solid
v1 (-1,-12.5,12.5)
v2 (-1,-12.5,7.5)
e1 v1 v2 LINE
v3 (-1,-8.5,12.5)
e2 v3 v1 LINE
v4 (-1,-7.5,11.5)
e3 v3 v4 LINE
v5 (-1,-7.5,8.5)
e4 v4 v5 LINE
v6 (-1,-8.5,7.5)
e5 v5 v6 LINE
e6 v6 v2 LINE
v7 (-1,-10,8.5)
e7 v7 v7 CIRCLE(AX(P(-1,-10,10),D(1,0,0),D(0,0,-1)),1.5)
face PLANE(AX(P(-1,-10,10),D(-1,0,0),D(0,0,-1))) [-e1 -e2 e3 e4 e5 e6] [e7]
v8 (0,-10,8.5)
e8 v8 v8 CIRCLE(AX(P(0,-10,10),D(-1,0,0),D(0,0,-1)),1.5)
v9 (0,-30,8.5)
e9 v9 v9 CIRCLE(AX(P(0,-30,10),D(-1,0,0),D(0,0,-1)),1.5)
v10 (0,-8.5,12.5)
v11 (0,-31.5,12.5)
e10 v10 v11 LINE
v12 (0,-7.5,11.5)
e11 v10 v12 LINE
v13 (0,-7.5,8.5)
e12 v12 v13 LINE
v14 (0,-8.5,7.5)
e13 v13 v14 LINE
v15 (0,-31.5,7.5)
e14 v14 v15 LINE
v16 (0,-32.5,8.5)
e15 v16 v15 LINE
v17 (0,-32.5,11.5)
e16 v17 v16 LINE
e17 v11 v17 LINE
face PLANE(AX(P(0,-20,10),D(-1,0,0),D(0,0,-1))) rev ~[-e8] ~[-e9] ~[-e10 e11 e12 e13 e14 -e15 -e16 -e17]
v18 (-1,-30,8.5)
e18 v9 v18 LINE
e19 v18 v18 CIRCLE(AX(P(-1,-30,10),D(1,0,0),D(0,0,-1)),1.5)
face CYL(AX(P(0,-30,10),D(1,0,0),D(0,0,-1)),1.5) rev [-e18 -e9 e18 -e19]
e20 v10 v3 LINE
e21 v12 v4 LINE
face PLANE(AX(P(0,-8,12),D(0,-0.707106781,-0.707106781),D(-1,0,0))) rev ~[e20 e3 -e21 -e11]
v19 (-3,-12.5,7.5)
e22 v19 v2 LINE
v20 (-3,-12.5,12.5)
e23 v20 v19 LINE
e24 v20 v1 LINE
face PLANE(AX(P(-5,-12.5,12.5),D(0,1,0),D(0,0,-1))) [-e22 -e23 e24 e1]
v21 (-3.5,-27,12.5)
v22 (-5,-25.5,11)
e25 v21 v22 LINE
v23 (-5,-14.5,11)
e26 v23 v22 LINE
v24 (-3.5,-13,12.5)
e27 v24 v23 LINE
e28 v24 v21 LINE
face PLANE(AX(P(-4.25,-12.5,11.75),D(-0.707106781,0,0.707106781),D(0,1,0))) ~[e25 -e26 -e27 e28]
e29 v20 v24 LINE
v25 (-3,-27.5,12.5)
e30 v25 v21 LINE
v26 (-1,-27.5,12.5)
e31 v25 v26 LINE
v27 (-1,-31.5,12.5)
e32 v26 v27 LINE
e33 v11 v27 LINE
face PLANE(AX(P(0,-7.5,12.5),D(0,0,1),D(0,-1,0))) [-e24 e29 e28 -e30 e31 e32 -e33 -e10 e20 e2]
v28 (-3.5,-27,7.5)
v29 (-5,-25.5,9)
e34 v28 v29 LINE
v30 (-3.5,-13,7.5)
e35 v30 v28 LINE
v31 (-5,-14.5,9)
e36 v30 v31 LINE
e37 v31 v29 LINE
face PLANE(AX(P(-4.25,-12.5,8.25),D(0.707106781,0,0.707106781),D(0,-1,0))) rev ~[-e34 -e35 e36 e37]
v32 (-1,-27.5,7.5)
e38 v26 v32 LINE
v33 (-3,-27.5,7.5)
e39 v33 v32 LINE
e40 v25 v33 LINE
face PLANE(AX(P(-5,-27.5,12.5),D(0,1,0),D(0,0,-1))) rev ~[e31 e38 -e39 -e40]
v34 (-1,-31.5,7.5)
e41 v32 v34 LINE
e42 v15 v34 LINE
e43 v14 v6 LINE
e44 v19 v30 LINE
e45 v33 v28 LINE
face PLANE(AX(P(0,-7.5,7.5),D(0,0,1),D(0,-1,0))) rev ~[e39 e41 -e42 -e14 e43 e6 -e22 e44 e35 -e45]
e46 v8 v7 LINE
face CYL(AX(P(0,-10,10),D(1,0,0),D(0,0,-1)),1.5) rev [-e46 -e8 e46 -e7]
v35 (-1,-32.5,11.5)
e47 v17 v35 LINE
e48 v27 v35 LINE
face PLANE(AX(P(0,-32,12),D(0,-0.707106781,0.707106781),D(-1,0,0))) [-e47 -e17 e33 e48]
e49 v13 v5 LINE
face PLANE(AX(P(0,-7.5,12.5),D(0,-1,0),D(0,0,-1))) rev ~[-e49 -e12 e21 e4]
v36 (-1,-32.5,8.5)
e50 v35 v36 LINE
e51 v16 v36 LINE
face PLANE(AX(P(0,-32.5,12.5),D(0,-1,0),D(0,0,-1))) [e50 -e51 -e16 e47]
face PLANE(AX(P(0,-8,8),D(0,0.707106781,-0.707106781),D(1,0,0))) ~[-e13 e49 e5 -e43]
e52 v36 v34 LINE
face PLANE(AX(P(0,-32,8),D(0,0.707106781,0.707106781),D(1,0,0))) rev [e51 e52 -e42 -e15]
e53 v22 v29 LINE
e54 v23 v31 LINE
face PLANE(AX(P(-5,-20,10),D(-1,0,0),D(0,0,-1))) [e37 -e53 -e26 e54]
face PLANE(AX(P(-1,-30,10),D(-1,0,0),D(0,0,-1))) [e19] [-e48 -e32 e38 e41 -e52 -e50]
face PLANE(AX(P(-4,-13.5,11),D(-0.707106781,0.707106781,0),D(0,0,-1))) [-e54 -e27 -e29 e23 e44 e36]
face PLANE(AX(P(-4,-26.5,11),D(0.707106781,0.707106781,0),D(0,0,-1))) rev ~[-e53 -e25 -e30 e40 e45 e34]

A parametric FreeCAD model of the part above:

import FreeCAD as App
import Part
import Sketcher


def edges_at(feature, points):
    """Names of the edges that pass closest to the given points."""
    edges = feature.Shape.Edges
    near = lambda p: min(range(len(edges)), key=lambda i: edges[i].distToShape(Part.Vertex(*p))[0])
    return sorted({f"Edge{near(p) + 1}" for p in points})

doc = App.newDocument("Part")
body = doc.addObject("PartDesign::Body", "Body")

sketch1 = body.newObject("Sketcher::SketchObject", "Sketch")
sketch1.AttachmentSupport = (doc.getObject("YZ_Plane"), [""])
sketch1.MapMode = "FlatFace"
sketch1.addGeometry(Part.LineSegment(App.Vector(-32.5, 12.5, 0), App.Vector(-7.5, 12.5, 0)), False)
sketch1.addGeometry(Part.LineSegment(App.Vector(-7.5, 12.5, 0), App.Vector(-7.5, 7.5, 0)), False)
sketch1.addGeometry(Part.LineSegment(App.Vector(-7.5, 7.5, 0), App.Vector(-32.5, 7.5, 0)), False)
sketch1.addGeometry(Part.LineSegment(App.Vector(-32.5, 7.5, 0), App.Vector(-32.5, 12.5, 0)), False)
sketch1.addGeometry(Part.Circle(App.Vector(-10, 10, 0), App.Vector(0, 0, 1), 1.5), False)
sketch1.addGeometry(Part.Circle(App.Vector(-30, 10, 0), App.Vector(0, 0, 1), 1.5), False)
sketch1.addConstraint(Sketcher.Constraint("Coincident", 0, 2, 1, 1))
sketch1.addConstraint(Sketcher.Constraint("Coincident", 1, 2, 2, 1))
sketch1.addConstraint(Sketcher.Constraint("Coincident", 2, 2, 3, 1))
sketch1.addConstraint(Sketcher.Constraint("Coincident", 3, 2, 0, 1))
sketch1.addConstraint(Sketcher.Constraint("Horizontal", 0))
sketch1.addConstraint(Sketcher.Constraint("Vertical", 1))
sketch1.addConstraint(Sketcher.Constraint("Horizontal", 2))
sketch1.addConstraint(Sketcher.Constraint("Vertical", 3))
sketch1.addConstraint(Sketcher.Constraint("Equal", 4, 5))
sketch1.addConstraint(Sketcher.Constraint("Horizontal", 4, 3, 5, 3))
sketch1.addConstraint(Sketcher.Constraint("Diameter", 4, 3.0))
sketch1.addConstraint(Sketcher.Constraint("DistanceX", 0, 1, 0, 2, 25.0))
sketch1.addConstraint(Sketcher.Constraint("DistanceY", 1, 2, 1, 1, 5.0))
sketch1.addConstraint(Sketcher.Constraint("DistanceX", 4, 3, -1, 1, 10.0))
sketch1.addConstraint(Sketcher.Constraint("DistanceY", -1, 1, 4, 3, 10.0))
sketch1.addConstraint(Sketcher.Constraint("DistanceX", 5, 3, -1, 1, 30.0))
sketch1.addConstraint(Sketcher.Constraint("DistanceX", 0, 2, -1, 1, 7.5))
sketch1.addConstraint(Sketcher.Constraint("DistanceY", -1, 1, 0, 2, 12.5))
pad1 = body.newObject("PartDesign::Pad", "Pad")
pad1.Profile = sketch1
pad1.Length = 5
pad1.Reversed = True

sketch2 = body.newObject("Sketcher::SketchObject", "Sketch001")
sketch2.AttachmentSupport = (doc.getObject("YZ_Plane"), [""])
sketch2.MapMode = "FlatFace"
sketch2.AttachmentOffset = App.Placement(App.Vector(0, 0, -5), App.Rotation())
sketch2.addGeometry(Part.LineSegment(App.Vector(-32.5, 12.5, 0), App.Vector(-27.5, 12.5, 0)), False)
sketch2.addGeometry(Part.LineSegment(App.Vector(-27.5, 12.5, 0), App.Vector(-27.5, 7.5, 0)), False)
sketch2.addGeometry(Part.LineSegment(App.Vector(-27.5, 7.5, 0), App.Vector(-32.5, 7.5, 0)), False)
sketch2.addGeometry(Part.LineSegment(App.Vector(-32.5, 7.5, 0), App.Vector(-32.5, 12.5, 0)), False)
sketch2.addGeometry(Part.LineSegment(App.Vector(-12.5, 12.5, 0), App.Vector(-7.5, 12.5, 0)), False)
sketch2.addGeometry(Part.LineSegment(App.Vector(-7.5, 12.5, 0), App.Vector(-7.5, 7.5, 0)), False)
sketch2.addGeometry(Part.LineSegment(App.Vector(-7.5, 7.5, 0), App.Vector(-12.5, 7.5, 0)), False)
sketch2.addGeometry(Part.LineSegment(App.Vector(-12.5, 7.5, 0), App.Vector(-12.5, 12.5, 0)), False)
sketch2.addConstraint(Sketcher.Constraint("Coincident", 0, 2, 1, 1))
sketch2.addConstraint(Sketcher.Constraint("Coincident", 1, 2, 2, 1))
sketch2.addConstraint(Sketcher.Constraint("Coincident", 2, 2, 3, 1))
sketch2.addConstraint(Sketcher.Constraint("Coincident", 3, 2, 0, 1))
sketch2.addConstraint(Sketcher.Constraint("Coincident", 4, 2, 5, 1))
sketch2.addConstraint(Sketcher.Constraint("Coincident", 5, 2, 6, 1))
sketch2.addConstraint(Sketcher.Constraint("Coincident", 6, 2, 7, 1))
sketch2.addConstraint(Sketcher.Constraint("Coincident", 7, 2, 4, 1))
sketch2.addConstraint(Sketcher.Constraint("Horizontal", 0))
sketch2.addConstraint(Sketcher.Constraint("Vertical", 1))
sketch2.addConstraint(Sketcher.Constraint("Horizontal", 2))
sketch2.addConstraint(Sketcher.Constraint("Vertical", 3))
sketch2.addConstraint(Sketcher.Constraint("Horizontal", 4))
sketch2.addConstraint(Sketcher.Constraint("Vertical", 5))
sketch2.addConstraint(Sketcher.Constraint("Horizontal", 6))
sketch2.addConstraint(Sketcher.Constraint("Vertical", 7))
sketch2.addConstraint(Sketcher.Constraint("Horizontal", 3, 2, 4, 2))
sketch2.addConstraint(Sketcher.Constraint("Horizontal", 2, 2, 5, 2))
sketch2.addConstraint(Sketcher.Constraint("Equal", 2, 4))
sketch2.addConstraint(Sketcher.Constraint("Equal", 6, 1))
sketch2.addConstraint(Sketcher.Constraint("DistanceX", 0, 1, 0, 2, 5.0))
sketch2.addConstraint(Sketcher.Constraint("DistanceX", 0, 2, 4, 2, 20.0))
sketch2.addConstraint(Sketcher.Constraint("DistanceX", 0, 2, -1, 1, 27.5))
sketch2.addConstraint(Sketcher.Constraint("DistanceY", -1, 1, 0, 2, 12.5))
pocket1 = body.newObject("PartDesign::Pocket", "Pocket")
pocket1.Profile = sketch2
pocket1.Length = 4
pocket1.Reversed = True
doc.recompute()

chamfer = body.newObject("PartDesign::Chamfer", "Chamfer")
chamfer.Base = (pocket1, edges_at(pocket1, [(-5, -20, 12.5), (-5, -20, 7.5)]))
chamfer.Size = 1.5
doc.recompute()

chamfer2 = body.newObject("PartDesign::Chamfer", "Chamfer001")
chamfer2.Base = (chamfer, edges_at(chamfer, [(-5, -12.5, 10), (-5, -27.5, 10)]))
chamfer2.Size = 2
doc.recompute()

chamfer3 = body.newObject("PartDesign::Chamfer", "Chamfer002")
chamfer3.Base = (chamfer2, edges_at(chamfer2, [
    (-0.5, -7.5, 7.5),
    (-0.5, -7.5, 12.5),
    (-0.5, -32.5, 7.5),
    (-0.5, -32.5, 12.5),
]))
chamfer3.Size = 1

doc.recompute()
